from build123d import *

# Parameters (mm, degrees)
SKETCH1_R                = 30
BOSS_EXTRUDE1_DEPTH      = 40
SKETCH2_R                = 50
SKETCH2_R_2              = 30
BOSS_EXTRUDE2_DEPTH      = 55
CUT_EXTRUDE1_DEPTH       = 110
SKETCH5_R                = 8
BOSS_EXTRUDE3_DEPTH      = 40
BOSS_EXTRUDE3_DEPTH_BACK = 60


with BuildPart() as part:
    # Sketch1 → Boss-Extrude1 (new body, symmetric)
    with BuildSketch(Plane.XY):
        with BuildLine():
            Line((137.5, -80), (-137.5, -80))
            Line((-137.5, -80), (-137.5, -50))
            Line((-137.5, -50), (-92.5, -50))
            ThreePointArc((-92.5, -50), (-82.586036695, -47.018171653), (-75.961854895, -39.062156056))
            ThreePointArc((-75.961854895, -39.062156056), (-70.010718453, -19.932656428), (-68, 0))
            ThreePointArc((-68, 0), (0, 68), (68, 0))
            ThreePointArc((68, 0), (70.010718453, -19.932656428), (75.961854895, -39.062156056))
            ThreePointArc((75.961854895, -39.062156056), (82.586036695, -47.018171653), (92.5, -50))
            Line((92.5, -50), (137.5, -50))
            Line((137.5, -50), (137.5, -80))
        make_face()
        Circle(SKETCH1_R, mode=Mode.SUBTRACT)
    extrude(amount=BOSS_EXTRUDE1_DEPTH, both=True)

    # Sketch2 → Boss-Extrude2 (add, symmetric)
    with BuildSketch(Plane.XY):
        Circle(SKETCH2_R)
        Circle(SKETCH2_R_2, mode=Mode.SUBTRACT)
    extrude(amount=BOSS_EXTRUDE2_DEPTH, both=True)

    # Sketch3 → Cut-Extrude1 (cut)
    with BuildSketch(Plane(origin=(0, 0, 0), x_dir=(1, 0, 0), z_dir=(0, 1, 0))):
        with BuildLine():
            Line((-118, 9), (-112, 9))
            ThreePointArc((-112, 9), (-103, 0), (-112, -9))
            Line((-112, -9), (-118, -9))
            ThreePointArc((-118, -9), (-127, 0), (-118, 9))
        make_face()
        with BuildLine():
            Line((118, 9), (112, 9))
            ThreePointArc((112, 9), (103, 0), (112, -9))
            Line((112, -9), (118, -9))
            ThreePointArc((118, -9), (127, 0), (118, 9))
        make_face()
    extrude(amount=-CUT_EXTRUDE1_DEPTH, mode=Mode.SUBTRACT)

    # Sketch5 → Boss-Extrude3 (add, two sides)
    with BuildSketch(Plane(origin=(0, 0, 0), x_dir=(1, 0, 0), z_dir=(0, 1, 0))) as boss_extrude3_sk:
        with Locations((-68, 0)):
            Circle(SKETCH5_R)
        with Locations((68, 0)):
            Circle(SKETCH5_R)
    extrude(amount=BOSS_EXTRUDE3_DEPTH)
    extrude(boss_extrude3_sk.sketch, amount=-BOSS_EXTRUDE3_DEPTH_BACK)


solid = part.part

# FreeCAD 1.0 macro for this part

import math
import FreeCAD as App
import Part
import Sketcher

doc = App.newDocument("Part")
params = doc.addObject("Spreadsheet::Sheet", "Params")
for row, (alias, value) in enumerate([
    ("sketch1_diameter", "60 mm"),
    ("sketch1_radius", "68 mm"),
    ("sketch1_width", "275 mm"),
    ("sketch1_width2", "45 mm"),
    ("sketch1_height", "30 mm"),
    ("pad1_length", "80 mm"),
    ("sketch2_diameter", "100 mm"),
    ("sketch2_diameter2", "60 mm"),
    ("pad2_length", "110 mm"),
    ("sketch3_radius", "9 mm"),
    ("sketch3_width", "6 mm"),
    ("pocket1_length", "110 mm"),
    ("sketch4_diameter", "16 mm"),
    ("pad3_length", "40 mm"),
    ("pad3_length2", "60 mm"),
], start=1):
    params.set(f"A{row}", alias)
    params.set(f"B{row}", "=" + value)
    params.setAlias(f"B{row}", alias)

body = doc.addObject("PartDesign::Body", "Body")

# Sketch on XY plane
sketch1 = body.newObject("Sketcher::SketchObject", "Sketch")
sketch1.AttachmentSupport = (doc.getObject("XY_Plane"), [""])
sketch1.MapMode = "FlatFace"
sketch1.addGeometry(Part.LineSegment(App.Vector(-138, -80, 0), App.Vector(138, -80, 0)), False)
sketch1.addGeometry(Part.LineSegment(App.Vector(138, -80, 0), App.Vector(138, -50, 0)), False)
sketch1.addGeometry(Part.LineSegment(App.Vector(138, -50, 0), App.Vector(92, -50, 0)), False)
sketch1.addGeometry(Part.ArcOfCircle(Part.Circle(App.Vector(93, -32, 0), App.Vector(0, 0, 1), 18), math.radians(-157), math.radians(-90)), False)
sketch1.addGeometry(Part.ArcOfCircle(Part.Circle(App.Vector(168, 0, 0), App.Vector(0, 0, 1), 100), math.radians(-180), math.radians(-157)), False)
sketch1.addGeometry(Part.ArcOfCircle(Part.Circle(App.Vector(0, 0, 0), App.Vector(0, 0, 1), 68), math.radians(0), math.radians(180)), False)
sketch1.addGeometry(Part.ArcOfCircle(Part.Circle(App.Vector(-168, 0, 0), App.Vector(0, 0, 1), 100), math.radians(-23), math.radians(0)), False)
sketch1.addGeometry(Part.ArcOfCircle(Part.Circle(App.Vector(-93, -32, 0), App.Vector(0, 0, 1), 18), math.radians(-90), math.radians(-23)), False)
sketch1.addGeometry(Part.LineSegment(App.Vector(-92, -50, 0), App.Vector(-138, -50, 0)), False)
sketch1.addGeometry(Part.LineSegment(App.Vector(-138, -50, 0), App.Vector(-138, -80, 0)), False)
sketch1.addGeometry(Part.Circle(App.Vector(0, 0, 0), App.Vector(0, 0, 1), 30), False)
sketch1.addConstraint(Sketcher.Constraint("Coincident", 0, 2, 1, 1))
sketch1.addConstraint(Sketcher.Constraint("Coincident", 1, 2, 2, 1))
sketch1.addConstraint(Sketcher.Constraint("Tangent", 2, 2, 3, 2))
sketch1.addConstraint(Sketcher.Constraint("Tangent", 3, 1, 4, 2))
sketch1.addConstraint(Sketcher.Constraint("Tangent", 4, 1, 5, 1))
sketch1.addConstraint(Sketcher.Constraint("Tangent", 5, 2, 6, 2))
sketch1.addConstraint(Sketcher.Constraint("Tangent", 6, 1, 7, 2))
sketch1.addConstraint(Sketcher.Constraint("Tangent", 7, 1, 8, 1))
sketch1.addConstraint(Sketcher.Constraint("Coincident", 8, 2, 9, 1))
sketch1.addConstraint(Sketcher.Constraint("Coincident", 9, 2, 0, 1))
sketch1.addConstraint(Sketcher.Constraint("Horizontal", 0))
sketch1.addConstraint(Sketcher.Constraint("Vertical", 1))
sketch1.addConstraint(Sketcher.Constraint("Horizontal", 2))
sketch1.addConstraint(Sketcher.Constraint("Horizontal", 8))
sketch1.addConstraint(Sketcher.Constraint("Vertical", 9))
sketch1.addConstraint(Sketcher.Constraint("Coincident", 5, 3, -1, 1))
sketch1.addConstraint(Sketcher.Constraint("Coincident", 10, 3, -1, 1))
sketch1.addConstraint(Sketcher.Constraint("Equal", 4, 6))
sketch1.addConstraint(Sketcher.Constraint("Equal", 3, 7))
sketch1.addConstraint(Sketcher.Constraint("Symmetric", 3, 3, 7, 3, -2))
sketch1.addConstraint(Sketcher.Constraint("PointOnObject", 4, 3, -1))
sketch1.addConstraint(Sketcher.Constraint("Equal", 2, 8))
sketch1.addConstraint(Sketcher.Constraint("Diameter", 10, 60.0))
sketch1.addConstraint(Sketcher.Constraint("Radius", 5, 68.0))
sketch1.addConstraint(Sketcher.Constraint("DistanceX", 0, 1, 0, 2, 275.0))
sketch1.addConstraint(Sketcher.Constraint("DistanceX", 2, 2, 2, 1, 45.0))
sketch1.addConstraint(Sketcher.Constraint("DistanceY", 1, 1, 1, 2, 30.0))
sketch1.addConstraint(Sketcher.Constraint("DistanceY", 0, 2, -1, 1, 80.0))
sketch1.addConstraint(Sketcher.Constraint("Radius", 3, 17.971854))
sketch1.setExpression("Constraints[22]", "Params.sketch1_diameter")
sketch1.setExpression("Constraints[23]", "Params.sketch1_radius")
sketch1.setExpression("Constraints[24]", "Params.sketch1_width")
sketch1.setExpression("Constraints[25]", "Params.sketch1_width2")
sketch1.setExpression("Constraints[26]", "Params.sketch1_height")
pad1 = body.newObject("PartDesign::Pad", "Pad")
pad1.Profile = sketch1
pad1.setExpression("Length", "Params.pad1_length")
pad1.Midplane = True

# Sketch on XY plane
sketch2 = body.newObject("Sketcher::SketchObject", "Sketch001")
sketch2.AttachmentSupport = (doc.getObject("XY_Plane"), [""])
sketch2.MapMode = "FlatFace"
sketch2.addGeometry(Part.Circle(App.Vector(0, 0, 0), App.Vector(0, 0, 1), 50), False)
sketch2.addGeometry(Part.Circle(App.Vector(0, 0, 0), App.Vector(0, 0, 1), 30), False)
sketch2.addConstraint(Sketcher.Constraint("Coincident", 0, 3, -1, 1))
sketch2.addConstraint(Sketcher.Constraint("Coincident", 1, 3, -1, 1))
sketch2.addConstraint(Sketcher.Constraint("Diameter", 0, 100.0))
sketch2.addConstraint(Sketcher.Constraint("Diameter", 1, 60.0))
sketch2.setExpression("Constraints[2]", "Params.sketch2_diameter")
sketch2.setExpression("Constraints[3]", "Params.sketch2_diameter2")
pad2 = body.newObject("PartDesign::Pad", "Pad001")
pad2.Profile = sketch2
pad2.setExpression("Length", "Params.pad2_length")
pad2.Midplane = True

# Sketch on XZ plane
sketch3 = body.newObject("Sketcher::SketchObject", "Sketch002")
sketch3.AttachmentSupport = (doc.getObject("XZ_Plane"), [""])
sketch3.MapMode = "FlatFace"
sketch3.addGeometry(Part.LineSegment(App.Vector(-112, -9, 0), App.Vector(-118, -9, 0)), False)
sketch3.addGeometry(Part.ArcOfCircle(Part.Circle(App.Vector(-118, 0, 0), App.Vector(0, 0, 1), 9), math.radians(90), math.radians(270)), False)
sketch3.addGeometry(Part.LineSegment(App.Vector(-118, 9, 0), App.Vector(-112, 9, 0)), False)
sketch3.addGeometry(Part.ArcOfCircle(Part.Circle(App.Vector(-112, 0, 0), App.Vector(0, 0, 1), 9), math.radians(-90), math.radians(90)), False)
sketch3.addGeometry(Part.LineSegment(App.Vector(118, -9, 0), App.Vector(112, -9, 0)), False)
sketch3.addGeometry(Part.ArcOfCircle(Part.Circle(App.Vector(112, 0, 0), App.Vector(0, 0, 1), 9), math.radians(90), math.radians(270)), False)
sketch3.addGeometry(Part.LineSegment(App.Vector(112, 9, 0), App.Vector(118, 9, 0)), False)
sketch3.addGeometry(Part.ArcOfCircle(Part.Circle(App.Vector(118, 0, 0), App.Vector(0, 0, 1), 9), math.radians(-90), math.radians(90)), False)
sketch3.addConstraint(Sketcher.Constraint("Tangent", 0, 2, 1, 2))
sketch3.addConstraint(Sketcher.Constraint("Tangent", 1, 1, 2, 1))
sketch3.addConstraint(Sketcher.Constraint("Tangent", 2, 2, 3, 2))
sketch3.addConstraint(Sketcher.Constraint("Tangent", 3, 1, 0, 1))
sketch3.addConstraint(Sketcher.Constraint("Tangent", 4, 2, 5, 2))
sketch3.addConstraint(Sketcher.Constraint("Tangent", 5, 1, 6, 1))
sketch3.addConstraint(Sketcher.Constraint("Tangent", 6, 2, 7, 2))
sketch3.addConstraint(Sketcher.Constraint("Tangent", 7, 1, 4, 1))
sketch3.addConstraint(Sketcher.Constraint("Horizontal", 0))
sketch3.addConstraint(Sketcher.Constraint("Horizontal", 2))
sketch3.addConstraint(Sketcher.Constraint("Horizontal", 4))
sketch3.addConstraint(Sketcher.Constraint("Horizontal", 6))
sketch3.addConstraint(Sketcher.Constraint("Equal", 3, 5))
sketch3.addConstraint(Sketcher.Constraint("Symmetric", 3, 3, 5, 3, -1, 1))
sketch3.addConstraint(Sketcher.Constraint("Symmetric", 1, 3, 7, 3, -2))
sketch3.addConstraint(Sketcher.Constraint("Radius", 1, 9.0))
sketch3.addConstraint(Sketcher.Constraint("DistanceX", 0, 2, 0, 1, 6.0))
sketch3.addConstraint(Sketcher.Constraint("DistanceX", 1, 3, -1, 1, 118.0))
sketch3.setExpression("Constraints[15]", "Params.sketch3_radius")
sketch3.setExpression("Constraints[16]", "Params.sketch3_width")
pocket1 = body.newObject("PartDesign::Pocket", "Pocket")
pocket1.Profile = sketch3
pocket1.setExpression("Length", "Params.pocket1_length")
pocket1.Reversed = True

# Sketch on XZ plane
sketch4 = body.newObject("Sketcher::SketchObject", "Sketch003")
sketch4.AttachmentSupport = (doc.getObject("XZ_Plane"), [""])
sketch4.MapMode = "FlatFace"
sketch4.addGeometry(Part.Circle(App.Vector(-68, 0, 0), App.Vector(0, 0, 1), 8), False)
sketch4.addGeometry(Part.Circle(App.Vector(68, 0, 0), App.Vector(0, 0, 1), 8), False)
sketch4.addConstraint(Sketcher.Constraint("Equal", 0, 1))
sketch4.addConstraint(Sketcher.Constraint("Symmetric", 0, 3, 1, 3, -1, 1))
sketch4.addConstraint(Sketcher.Constraint("PointOnObject", 0, 3, -1))
sketch4.addConstraint(Sketcher.Constraint("Diameter", 0, 16.0))
sketch4.addConstraint(Sketcher.Constraint("DistanceX", 0, 3, -1, 1, 68.0))
sketch4.setExpression("Constraints[3]", "Params.sketch4_diameter")
pad3 = body.newObject("PartDesign::Pad", "Pad002")
pad3.Profile = sketch4
pad3.Type = "TwoLengths"
pad3.setExpression("Length", "Params.pad3_length")
pad3.setExpression("Length2", "Params.pad3_length2")
pad3.Reversed = True

doc.recompute()
